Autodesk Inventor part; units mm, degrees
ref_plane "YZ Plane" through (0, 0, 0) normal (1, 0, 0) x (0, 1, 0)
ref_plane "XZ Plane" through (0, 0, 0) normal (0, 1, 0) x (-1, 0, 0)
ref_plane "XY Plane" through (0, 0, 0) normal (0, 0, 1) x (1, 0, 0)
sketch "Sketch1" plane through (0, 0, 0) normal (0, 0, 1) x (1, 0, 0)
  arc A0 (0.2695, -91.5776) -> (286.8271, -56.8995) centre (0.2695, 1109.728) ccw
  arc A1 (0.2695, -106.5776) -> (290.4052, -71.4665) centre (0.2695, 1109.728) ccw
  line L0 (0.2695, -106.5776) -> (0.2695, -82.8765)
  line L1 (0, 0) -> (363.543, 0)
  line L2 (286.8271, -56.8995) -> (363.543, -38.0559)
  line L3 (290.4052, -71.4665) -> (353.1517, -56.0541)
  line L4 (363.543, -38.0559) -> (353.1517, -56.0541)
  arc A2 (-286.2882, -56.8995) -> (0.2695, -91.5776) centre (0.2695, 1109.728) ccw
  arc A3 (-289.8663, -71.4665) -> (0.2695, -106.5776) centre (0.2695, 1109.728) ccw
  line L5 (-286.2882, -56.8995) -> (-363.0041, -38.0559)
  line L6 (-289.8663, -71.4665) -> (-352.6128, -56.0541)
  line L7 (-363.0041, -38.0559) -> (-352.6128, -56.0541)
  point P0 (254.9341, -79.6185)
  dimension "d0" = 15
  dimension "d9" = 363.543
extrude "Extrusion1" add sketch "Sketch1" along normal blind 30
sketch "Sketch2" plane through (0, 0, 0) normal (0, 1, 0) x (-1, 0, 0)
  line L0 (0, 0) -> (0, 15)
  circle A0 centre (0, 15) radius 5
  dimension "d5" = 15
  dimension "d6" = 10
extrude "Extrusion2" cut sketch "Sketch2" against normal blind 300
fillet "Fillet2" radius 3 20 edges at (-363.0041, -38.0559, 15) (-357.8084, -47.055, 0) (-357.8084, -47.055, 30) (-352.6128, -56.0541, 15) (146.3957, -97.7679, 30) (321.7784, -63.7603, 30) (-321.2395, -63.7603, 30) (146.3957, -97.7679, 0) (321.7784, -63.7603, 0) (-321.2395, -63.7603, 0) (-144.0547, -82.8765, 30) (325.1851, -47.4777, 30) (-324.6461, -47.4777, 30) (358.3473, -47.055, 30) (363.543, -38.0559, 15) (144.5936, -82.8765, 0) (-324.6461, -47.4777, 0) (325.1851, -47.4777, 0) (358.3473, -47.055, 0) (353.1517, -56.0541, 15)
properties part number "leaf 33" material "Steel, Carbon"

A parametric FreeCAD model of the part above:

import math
import FreeCAD as App
import Part
import Sketcher

V = App.Vector
Q = App.Units.Quantity


def edges_at(feature, points):
    """Names of the edges that pass closest to the given points."""
    edges = feature.Shape.Edges
    near = lambda p: min(range(len(edges)), key=lambda i: edges[i].distToShape(Part.Vertex(*p))[0])
    return sorted({f"Edge{near(p) + 1}" for p in points})

doc = App.newDocument("Part")
params = doc.addObject("Spreadsheet::Sheet", "Params")
for row, (alias, value) in enumerate([
    ("pad1_length", "30 mm"),
    ("sketch2_diameter", "10 mm"),
    ("pocket1_length", "300 mm"),
    ("fillet_radius", "3 mm"),
], start=1):
    params.set(f"A{row}", alias)
    params.set(f"B{row}", "=" + value)
    params.setAlias(f"B{row}", alias)

body = doc.addObject("PartDesign::Body", "Body")

sketch1 = doc.addObject("Sketcher::SketchObject", "Sketch")
body.addObject(sketch1)
sketch1.AttachmentSupport = (doc.XY_Plane, [""])
sketch1.MapMode = "FlatFace"
sketch1.addGeometry(Part.ArcOfCircle(Part.Circle(V(0.269782, 1109.723325, 0), V(0, 0, 1), 1201.300925), math.radians(-90.000013), math.radians(-76.199663)), False)
sketch1.addGeometry(Part.ArcOfCircle(Part.Circle(V(0.270045, 1109.730985, 0), V(0, 0, 1), 1201.308585), math.radians(-103.800292), math.radians(-90.000026)), False)
sketch1.addGeometry(Part.LineSegment(V(-286.2882, -56.8995, 0), V(-363.0041, -38.0559, 0)), False)
sketch1.addGeometry(Part.LineSegment(V(-363.0041, -38.0559, 0), V(-352.6128, -56.0541, 0)), False)
sketch1.addGeometry(Part.LineSegment(V(-352.6128, -56.0541, 0), V(-289.8663, -71.4665, 0)), False)
sketch1.addGeometry(Part.ArcOfCircle(Part.Circle(V(0.269926, 1109.73033, 0), V(0, 0, 1), 1216.30793), math.radians(-103.800295), math.radians(-90.00002)), False)
sketch1.addGeometry(Part.ArcOfCircle(Part.Circle(V(0.269742, 1109.723989, 0), V(0, 0, 1), 1216.301589), math.radians(-90.000011), math.radians(-76.199668)), False)
sketch1.addGeometry(Part.LineSegment(V(290.4052, -71.4665, 0), V(353.1517, -56.0541, 0)), False)
sketch1.addGeometry(Part.LineSegment(V(353.1517, -56.0541, 0), V(363.543, -38.0559, 0)), False)
sketch1.addGeometry(Part.LineSegment(V(363.543, -38.0559, 0), V(286.8271, -56.8995, 0)), False)
sketch1.addConstraint(Sketcher.Constraint("Coincident", 0, 1, 1, 2))
sketch1.addConstraint(Sketcher.Constraint("Coincident", 1, 1, 2, 1))
sketch1.addConstraint(Sketcher.Constraint("Coincident", 2, 2, 3, 1))
sketch1.addConstraint(Sketcher.Constraint("Coincident", 3, 2, 4, 1))
sketch1.addConstraint(Sketcher.Constraint("Coincident", 4, 2, 5, 1))
sketch1.addConstraint(Sketcher.Constraint("Coincident", 5, 2, 6, 1))
sketch1.addConstraint(Sketcher.Constraint("Coincident", 6, 2, 7, 1))
sketch1.addConstraint(Sketcher.Constraint("Coincident", 7, 2, 8, 1))
sketch1.addConstraint(Sketcher.Constraint("Coincident", 8, 2, 9, 1))
sketch1.addConstraint(Sketcher.Constraint("Coincident", 9, 2, 0, 2))
sketch1.addConstraint(Sketcher.Constraint("DistanceY", 5, 2, 0, 1, Q("15 mm")))
sketch1.addConstraint(Sketcher.Constraint("DistanceX", -1, 1, 8, 2, Q("363.543 mm")))
sketch1.addConstraint(Sketcher.Constraint("Radius", 0, Q("1201.301 mm")))
sketch1.addConstraint(Sketcher.Constraint("Radius", 5, Q("1216.308 mm")))
sketch1.addConstraint(Sketcher.Constraint("DistanceX", 5, 3, 1, 3, Q("0 mm")))
sketch1.addConstraint(Sketcher.Constraint("Radius", 1, Q("1201.3086 mm")))
sketch1.addConstraint(Sketcher.Constraint("Radius", 6, Q("1216.3016 mm")))
sketch1.addConstraint(Sketcher.Constraint("DistanceX", -1, 1, 1, 3, Q("0.27 mm")))
sketch1.addConstraint(Sketcher.Constraint("DistanceY", 2, 2, 6, 3, Q("1147.78 mm")))
sketch1.addConstraint(Sketcher.Constraint("DistanceY", -1, 1, 1, 3, Q("1109.731 mm")))
sketch1.addConstraint(Sketcher.Constraint("DistanceX", 2, 2, -1, 1, Q("363.004 mm")))
sketch1.addConstraint(Sketcher.Constraint("DistanceY", 3, 2, -1, 1, Q("56.054 mm")))
sketch1.addConstraint(Sketcher.Constraint("DistanceY", 7, 2, -1, 1, Q("56.054 mm")))
sketch1.addConstraint(Sketcher.Constraint("DistanceY", 8, 2, -1, 1, Q("38.056 mm")))
sketch1.addConstraint(Sketcher.Constraint("DistanceX", -1, 1, 9, 2, Q("286.827 mm")))
sketch1.addConstraint(Sketcher.Constraint("DistanceX", 2, 2, 0, 3, Q("363.274 mm")))
sketch1.addConstraint(Sketcher.Constraint("DistanceY", 0, 1, 4, 2, Q("20.111 mm")))
sketch1.addConstraint(Sketcher.Constraint("DistanceX", 4, 2, 7, 2, Q("643.018 mm")))
sketch1.addConstraint(Sketcher.Constraint("Distance", 2, Q("78.9963 mm")))
sketch1.addConstraint(Sketcher.Constraint("Distance", 3, Q("20.7825 mm")))
sketch1.addConstraint(Sketcher.Constraint("Distance", 7, Q("64.6117 mm")))
sketch1.addConstraint(Sketcher.Constraint("DistanceX", -1, 1, 6, 3, Q("0.2697 mm")))
sketch1.addConstraint(Sketcher.Constraint("DistanceX", -1, 1, 0, 1, Q("0.2695 mm")))
sketch1.addConstraint(Sketcher.Constraint("DistanceX", -1, 1, 5, 2, Q("0.2695 mm")))
pad1 = doc.addObject("PartDesign::Pad", "Pad")
body.addObject(pad1)
pad1.Profile = sketch1
pad1.setExpression("Length", "Params.pad1_length")

sketch2 = doc.addObject("Sketcher::SketchObject", "Sketch001")
body.addObject(sketch2)
sketch2.AttachmentSupport = (doc.XZ_Plane, [""])
sketch2.MapMode = "FlatFace"
sketch2.addGeometry(Part.Circle(V(0, 15, 0), V(0, 0, 1), 5), False)
sketch2.addConstraint(Sketcher.Constraint("PointOnObject", 0, 3, -2))
sketch2.addConstraint(Sketcher.Constraint("Diameter", 0, Q("10 mm")))
sketch2.addConstraint(Sketcher.Constraint("DistanceY", -1, 1, 0, 3, Q("15 mm")))
sketch2.setExpression("Constraints[1]", "Params.sketch2_diameter")
pocket1 = doc.addObject("PartDesign::Pocket", "Pocket")
body.addObject(pocket1)
pocket1.Profile = sketch2
pocket1.setExpression("Length", "Params.pocket1_length")
pocket1.Reversed = True
doc.recompute()

fillet = doc.addObject("PartDesign::Fillet", "Fillet")
body.addObject(fillet)
fillet.Base = (pocket1, edges_at(pocket1, [
    (-363.004, -38.056, 15),
    (-357.808, -47.055, 0),
    (-357.808, -47.055, 30),
    (-352.613, -56.054, 15),
    (146.396, -97.768, 30),
    (321.778, -63.76, 30),
    (-321.24, -63.76, 30),
    (146.396, -97.768, 0),
    (321.778, -63.76, 0),
    (-321.24, -63.76, 0),
    (-144.055, -82.876, 30),
    (325.185, -47.478, 30),
    (-324.646, -47.478, 30),
    (358.347, -47.055, 30),
    (363.543, -38.056, 15),
    (144.594, -82.876, 0),
    (-324.646, -47.478, 0),
    (325.185, -47.478, 0),
    (358.347, -47.055, 0),
    (353.152, -56.054, 15),
]))
fillet.setExpression("Radius", "Params.fillet_radius")

doc.recompute()
